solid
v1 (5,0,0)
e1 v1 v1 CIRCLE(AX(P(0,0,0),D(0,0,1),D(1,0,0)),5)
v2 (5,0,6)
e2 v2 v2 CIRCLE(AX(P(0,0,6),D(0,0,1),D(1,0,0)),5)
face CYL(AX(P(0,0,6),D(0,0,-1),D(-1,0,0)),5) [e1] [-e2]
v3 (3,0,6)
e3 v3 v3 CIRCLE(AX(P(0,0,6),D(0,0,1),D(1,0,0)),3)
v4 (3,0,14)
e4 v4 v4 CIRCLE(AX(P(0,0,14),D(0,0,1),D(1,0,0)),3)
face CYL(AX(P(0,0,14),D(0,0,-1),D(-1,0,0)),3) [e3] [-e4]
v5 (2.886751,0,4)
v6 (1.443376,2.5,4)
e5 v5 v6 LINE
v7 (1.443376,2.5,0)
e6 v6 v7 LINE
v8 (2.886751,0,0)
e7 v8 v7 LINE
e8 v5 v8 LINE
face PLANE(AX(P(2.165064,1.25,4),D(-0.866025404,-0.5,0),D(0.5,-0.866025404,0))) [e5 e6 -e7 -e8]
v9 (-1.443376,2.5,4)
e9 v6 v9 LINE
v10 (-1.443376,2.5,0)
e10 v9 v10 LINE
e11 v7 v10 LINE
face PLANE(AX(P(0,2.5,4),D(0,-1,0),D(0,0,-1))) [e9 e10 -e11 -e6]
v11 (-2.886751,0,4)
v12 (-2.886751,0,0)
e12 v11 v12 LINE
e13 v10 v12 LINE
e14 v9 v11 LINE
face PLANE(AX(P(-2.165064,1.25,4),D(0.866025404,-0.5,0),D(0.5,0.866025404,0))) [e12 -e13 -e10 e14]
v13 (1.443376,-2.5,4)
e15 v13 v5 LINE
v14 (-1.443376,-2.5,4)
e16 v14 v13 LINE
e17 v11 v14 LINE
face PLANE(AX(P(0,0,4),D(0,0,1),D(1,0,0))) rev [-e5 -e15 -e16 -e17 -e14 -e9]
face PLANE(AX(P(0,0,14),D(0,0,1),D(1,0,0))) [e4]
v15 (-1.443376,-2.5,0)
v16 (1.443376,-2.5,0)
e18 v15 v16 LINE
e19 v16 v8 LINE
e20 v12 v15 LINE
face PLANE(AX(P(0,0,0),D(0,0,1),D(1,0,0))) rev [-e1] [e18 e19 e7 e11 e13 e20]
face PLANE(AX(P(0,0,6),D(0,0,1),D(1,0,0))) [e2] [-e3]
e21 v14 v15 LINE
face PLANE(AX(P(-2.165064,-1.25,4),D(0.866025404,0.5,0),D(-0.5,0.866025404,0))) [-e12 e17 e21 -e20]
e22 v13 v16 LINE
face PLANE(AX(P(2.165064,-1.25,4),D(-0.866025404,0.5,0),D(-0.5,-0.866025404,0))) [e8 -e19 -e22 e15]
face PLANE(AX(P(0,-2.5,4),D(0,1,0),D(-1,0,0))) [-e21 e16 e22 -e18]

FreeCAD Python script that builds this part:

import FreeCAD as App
import Part
import Sketcher
Q = App.Units.Quantity

doc = App.newDocument("Part")
body = doc.addObject("PartDesign::Body", "Body")

sketch1 = body.newObject("Sketcher::SketchObject", "Sketch")
sketch1.AttachmentSupport = (doc.getObject("XY_Plane"), [""])
sketch1.MapMode = "FlatFace"
sketch1.addGeometry(Part.Circle(App.Vector(0, 0, 0), App.Vector(0, 0, 1), 5), False)
sketch1.addConstraint([
    Sketcher.Constraint("Coincident", 0, 3, -1, 1),
    Sketcher.Constraint("Diameter", 0, 10.0),
])
pad1 = body.newObject("PartDesign::Pad", "Pad")
pad1.Profile = sketch1
pad1.Length = 6

sketch2 = body.newObject("Sketcher::SketchObject", "Sketch001")
sketch2.AttachmentSupport = (doc.getObject("XY_Plane"), [""])
sketch2.MapMode = "FlatFace"
sketch2.AttachmentOffset = App.Placement(App.Vector(0, 0, 6), App.Rotation())
sketch2.addGeometry(Part.Circle(App.Vector(0, 0, 0), App.Vector(0, 0, 1), 3), False)
sketch2.addConstraint([
    Sketcher.Constraint("Coincident", 0, 3, -1, 1),
    Sketcher.Constraint("Diameter", 0, 6.0),
])
pad2 = body.newObject("PartDesign::Pad", "Pad001")
pad2.Profile = sketch2
pad2.Length = 8

sketch3 = body.newObject("Sketcher::SketchObject", "Sketch002")
sketch3.AttachmentSupport = (doc.getObject("XY_Plane"), [""])
sketch3.MapMode = "FlatFace"
sketch3.addGeometry([
    Part.LineSegment(App.Vector(1.443376, 2.5, 0), App.Vector(-1.443376, 2.5, 0)),
    Part.LineSegment(App.Vector(-1.443376, 2.5, 0), App.Vector(-2.886751, 0, 0)),
    Part.LineSegment(App.Vector(-2.886751, 0, 0), App.Vector(-1.443376, -2.5, 0)),
    Part.LineSegment(App.Vector(-1.443376, -2.5, 0), App.Vector(1.443376, -2.5, 0)),
    Part.LineSegment(App.Vector(1.443376, -2.5, 0), App.Vector(2.886751, 0, 0)),
    Part.LineSegment(App.Vector(2.886751, 0, 0), App.Vector(1.443376, 2.5, 0)),
], False)
sketch3.addConstraint([
    Sketcher.Constraint("Coincident", 0, 2, 1, 1),
    Sketcher.Constraint("Coincident", 1, 2, 2, 1),
    Sketcher.Constraint("Coincident", 2, 2, 3, 1),
    Sketcher.Constraint("Coincident", 3, 2, 4, 1),
    Sketcher.Constraint("Coincident", 4, 2, 5, 1),
    Sketcher.Constraint("Coincident", 5, 2, 0, 1),
    Sketcher.Constraint("Horizontal", 0),
    Sketcher.Constraint("Horizontal", 3),
    Sketcher.Constraint("Symmetric", 0, 2, 3, 2, -1, 1),
    Sketcher.Constraint("Symmetric", 1, 2, 4, 2, -1, 1),
    Sketcher.Constraint("PointOnObject", 1, 2, -1),
    Sketcher.Constraint("Parallel", 2, 5),
    Sketcher.Constraint("Vertical", 0, 2, 2, 2),
    Sketcher.Constraint("Angle", 1, Q("-120 deg")),
    Sketcher.Constraint("DistanceY", 2, 2, 0, 2, 5.0),
    Sketcher.Constraint("DistanceX", 0, 2, 0, 1, 2.886751),
])
pocket1 = body.newObject("PartDesign::Pocket", "Pocket")
pocket1.Profile = sketch3
pocket1.Length = 4
pocket1.Reversed = True

doc.recompute()
